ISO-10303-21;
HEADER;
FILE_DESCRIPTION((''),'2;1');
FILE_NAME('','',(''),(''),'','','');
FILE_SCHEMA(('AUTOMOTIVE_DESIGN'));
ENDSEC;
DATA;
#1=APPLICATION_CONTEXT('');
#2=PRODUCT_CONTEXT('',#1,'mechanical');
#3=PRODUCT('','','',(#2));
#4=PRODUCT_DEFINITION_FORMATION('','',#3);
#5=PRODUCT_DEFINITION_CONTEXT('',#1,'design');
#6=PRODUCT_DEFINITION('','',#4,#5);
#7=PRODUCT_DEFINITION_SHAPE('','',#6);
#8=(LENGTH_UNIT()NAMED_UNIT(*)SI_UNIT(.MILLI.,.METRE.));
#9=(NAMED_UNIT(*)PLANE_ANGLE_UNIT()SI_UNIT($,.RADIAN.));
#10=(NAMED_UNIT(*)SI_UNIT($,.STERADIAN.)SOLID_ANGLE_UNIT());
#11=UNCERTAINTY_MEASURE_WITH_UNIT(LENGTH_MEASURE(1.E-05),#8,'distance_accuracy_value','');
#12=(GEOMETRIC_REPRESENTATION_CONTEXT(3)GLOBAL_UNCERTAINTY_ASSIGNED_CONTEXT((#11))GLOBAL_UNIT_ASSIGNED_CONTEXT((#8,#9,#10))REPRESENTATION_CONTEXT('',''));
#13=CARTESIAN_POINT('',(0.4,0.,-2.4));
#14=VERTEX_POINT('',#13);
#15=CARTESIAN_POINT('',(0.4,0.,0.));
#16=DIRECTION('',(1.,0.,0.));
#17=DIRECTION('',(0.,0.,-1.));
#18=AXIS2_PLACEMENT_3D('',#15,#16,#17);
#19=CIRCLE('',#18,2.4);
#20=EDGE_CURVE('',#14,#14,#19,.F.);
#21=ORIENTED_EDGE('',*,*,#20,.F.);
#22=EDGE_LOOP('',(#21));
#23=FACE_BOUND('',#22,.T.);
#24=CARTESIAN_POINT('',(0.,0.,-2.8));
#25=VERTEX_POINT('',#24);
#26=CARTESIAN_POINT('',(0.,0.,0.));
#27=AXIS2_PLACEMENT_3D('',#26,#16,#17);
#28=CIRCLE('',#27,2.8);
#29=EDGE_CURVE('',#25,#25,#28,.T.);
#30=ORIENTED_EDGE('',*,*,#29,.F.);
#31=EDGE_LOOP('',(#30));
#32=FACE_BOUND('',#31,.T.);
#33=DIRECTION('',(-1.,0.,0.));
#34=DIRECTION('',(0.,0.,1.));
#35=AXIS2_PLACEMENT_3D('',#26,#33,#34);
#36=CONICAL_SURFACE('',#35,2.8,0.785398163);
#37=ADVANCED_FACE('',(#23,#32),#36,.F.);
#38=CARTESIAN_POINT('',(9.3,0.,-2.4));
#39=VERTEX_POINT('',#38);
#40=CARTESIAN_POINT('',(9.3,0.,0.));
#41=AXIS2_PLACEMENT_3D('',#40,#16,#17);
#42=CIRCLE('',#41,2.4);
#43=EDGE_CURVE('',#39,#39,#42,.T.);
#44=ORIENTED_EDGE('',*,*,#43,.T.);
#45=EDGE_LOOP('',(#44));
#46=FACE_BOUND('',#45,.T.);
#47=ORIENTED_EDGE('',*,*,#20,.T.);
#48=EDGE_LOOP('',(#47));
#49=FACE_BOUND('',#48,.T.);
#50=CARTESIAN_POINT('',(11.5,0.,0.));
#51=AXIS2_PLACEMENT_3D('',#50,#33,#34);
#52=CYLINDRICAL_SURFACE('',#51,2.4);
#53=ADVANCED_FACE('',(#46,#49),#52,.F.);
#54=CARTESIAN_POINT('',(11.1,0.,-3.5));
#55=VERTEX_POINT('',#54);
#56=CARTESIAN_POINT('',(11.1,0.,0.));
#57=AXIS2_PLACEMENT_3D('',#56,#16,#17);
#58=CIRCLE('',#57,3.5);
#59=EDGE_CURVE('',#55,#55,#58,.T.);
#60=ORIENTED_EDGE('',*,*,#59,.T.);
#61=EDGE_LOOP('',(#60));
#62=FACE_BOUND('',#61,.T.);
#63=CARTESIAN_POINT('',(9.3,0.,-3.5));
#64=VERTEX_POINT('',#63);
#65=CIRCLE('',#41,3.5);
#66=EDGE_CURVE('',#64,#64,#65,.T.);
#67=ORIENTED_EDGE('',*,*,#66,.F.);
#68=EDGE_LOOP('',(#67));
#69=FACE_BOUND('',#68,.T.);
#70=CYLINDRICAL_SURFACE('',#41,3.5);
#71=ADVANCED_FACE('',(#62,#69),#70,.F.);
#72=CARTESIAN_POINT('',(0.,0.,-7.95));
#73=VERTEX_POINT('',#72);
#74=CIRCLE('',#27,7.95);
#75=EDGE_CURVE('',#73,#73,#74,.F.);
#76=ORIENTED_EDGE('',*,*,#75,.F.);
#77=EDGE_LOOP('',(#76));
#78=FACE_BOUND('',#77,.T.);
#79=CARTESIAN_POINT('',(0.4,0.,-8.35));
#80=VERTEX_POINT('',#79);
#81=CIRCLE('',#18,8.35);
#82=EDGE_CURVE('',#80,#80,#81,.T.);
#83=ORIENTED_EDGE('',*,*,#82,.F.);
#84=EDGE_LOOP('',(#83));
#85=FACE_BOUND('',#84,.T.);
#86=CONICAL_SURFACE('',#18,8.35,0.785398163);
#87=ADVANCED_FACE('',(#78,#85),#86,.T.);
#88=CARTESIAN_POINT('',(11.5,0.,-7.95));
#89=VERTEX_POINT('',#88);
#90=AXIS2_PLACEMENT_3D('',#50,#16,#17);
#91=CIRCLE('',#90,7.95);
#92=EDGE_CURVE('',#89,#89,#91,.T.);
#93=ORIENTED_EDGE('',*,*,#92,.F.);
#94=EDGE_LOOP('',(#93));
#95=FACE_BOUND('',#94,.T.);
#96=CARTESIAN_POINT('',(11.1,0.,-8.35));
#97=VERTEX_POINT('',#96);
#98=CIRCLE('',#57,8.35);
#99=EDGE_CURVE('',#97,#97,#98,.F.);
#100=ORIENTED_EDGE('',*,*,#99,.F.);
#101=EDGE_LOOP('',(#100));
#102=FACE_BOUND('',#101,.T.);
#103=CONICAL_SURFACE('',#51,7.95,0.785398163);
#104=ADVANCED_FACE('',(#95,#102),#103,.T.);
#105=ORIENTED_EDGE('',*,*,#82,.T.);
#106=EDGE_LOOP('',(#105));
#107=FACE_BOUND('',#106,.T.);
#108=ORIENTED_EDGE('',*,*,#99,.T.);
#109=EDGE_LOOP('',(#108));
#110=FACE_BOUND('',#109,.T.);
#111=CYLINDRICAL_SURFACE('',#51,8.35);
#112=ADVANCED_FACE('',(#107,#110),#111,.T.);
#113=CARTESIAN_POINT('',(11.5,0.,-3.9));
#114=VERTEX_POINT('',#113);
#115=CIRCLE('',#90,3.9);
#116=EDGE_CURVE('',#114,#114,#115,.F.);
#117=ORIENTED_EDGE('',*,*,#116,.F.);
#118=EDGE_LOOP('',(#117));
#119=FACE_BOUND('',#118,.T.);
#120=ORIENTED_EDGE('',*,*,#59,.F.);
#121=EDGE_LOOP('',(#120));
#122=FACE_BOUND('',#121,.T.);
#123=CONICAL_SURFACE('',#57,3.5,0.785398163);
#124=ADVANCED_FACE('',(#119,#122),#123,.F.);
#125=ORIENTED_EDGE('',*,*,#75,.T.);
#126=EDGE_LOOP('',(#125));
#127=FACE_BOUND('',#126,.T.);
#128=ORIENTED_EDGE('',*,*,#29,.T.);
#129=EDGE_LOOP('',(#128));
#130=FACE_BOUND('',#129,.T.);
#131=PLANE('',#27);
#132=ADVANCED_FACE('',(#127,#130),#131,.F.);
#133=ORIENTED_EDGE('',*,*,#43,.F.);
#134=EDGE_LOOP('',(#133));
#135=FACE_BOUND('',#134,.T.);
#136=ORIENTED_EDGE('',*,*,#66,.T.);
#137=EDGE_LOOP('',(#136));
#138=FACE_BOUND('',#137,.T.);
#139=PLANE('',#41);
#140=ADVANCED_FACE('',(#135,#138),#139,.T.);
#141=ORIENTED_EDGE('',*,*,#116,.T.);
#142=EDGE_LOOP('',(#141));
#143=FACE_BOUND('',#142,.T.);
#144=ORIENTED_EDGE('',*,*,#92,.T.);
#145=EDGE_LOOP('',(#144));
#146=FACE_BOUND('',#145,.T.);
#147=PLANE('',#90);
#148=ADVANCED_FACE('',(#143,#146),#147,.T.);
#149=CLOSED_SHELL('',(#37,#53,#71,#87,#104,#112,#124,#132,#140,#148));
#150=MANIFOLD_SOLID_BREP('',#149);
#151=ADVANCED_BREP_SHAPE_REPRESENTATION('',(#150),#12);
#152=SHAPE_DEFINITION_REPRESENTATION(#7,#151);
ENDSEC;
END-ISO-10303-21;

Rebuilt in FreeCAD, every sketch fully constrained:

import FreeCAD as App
import Part
import Sketcher
from FreeCAD import Vector
Q = App.Units.Quantity


def edges_at(feature, points):
    """Names of the edges that pass closest to the given points."""
    edges = feature.Shape.Edges
    near = lambda p: min(range(len(edges)), key=lambda i: edges[i].distToShape(Part.Vertex(*p))[0])
    return sorted({f"Edge{near(p) + 1}" for p in points})

doc = App.newDocument("Part")
body = doc.addObject("PartDesign::Body", "Body")

# Sketch on YZ plane
sketch1 = body.newObject("Sketcher::SketchObject", "Sketch")
sketch1.AttachmentSupport = (doc.getObject("YZ_Plane"), [""])
sketch1.MapMode = "FlatFace"
sketch1.addGeometry([
    Part.Circle(Vector(0, 0, 0), Vector(0, 0, 1), 8.3),
    Part.Circle(Vector(0, 0, 0), Vector(0, 0, 1), 2.4),
], False)
sketch1.addConstraint([
    Sketcher.Constraint("Coincident", 0, 3, -1, 1),
    Sketcher.Constraint("Coincident", 1, 3, -1, 1),
    Sketcher.Constraint("Diameter", 0, Q("16.7 mm")),
    Sketcher.Constraint("Diameter", 1, Q("4.8 mm")),
])
pad1 = body.newObject("PartDesign::Pad", "Pad")
pad1.Profile = sketch1
pad1.Length = 11.5

# Sketch on YZ plane
sketch2 = body.newObject("Sketcher::SketchObject", "Sketch001")
sketch2.AttachmentSupport = (doc.getObject("YZ_Plane"), [""])
sketch2.MapMode = "FlatFace"
sketch2.AttachmentOffset = App.Placement(Vector(0, 0, 11.5), App.Rotation())
sketch2.addGeometry(Part.Circle(Vector(0, 0, 0), Vector(0, 0, 1), 3.5), False)
sketch2.addConstraint([
    Sketcher.Constraint("Coincident", 0, 3, -1, 1),
    Sketcher.Constraint("Diameter", 0, Q("7 mm")),
])
pocket1 = body.newObject("PartDesign::Pocket", "Pocket")
pocket1.Profile = sketch2
pocket1.Length = 2.2
doc.recompute()

chamfer = body.newObject("PartDesign::Chamfer", "Chamfer")
chamfer.Base = (pocket1, edges_at(pocket1, [
    (11.5, 0, 3.5),
    (0, 0, 8.35),
    (11.5, 0, 8.35),
    (0, 0, 2.4),
]))
chamfer.Size = 0.4

doc.recompute()
